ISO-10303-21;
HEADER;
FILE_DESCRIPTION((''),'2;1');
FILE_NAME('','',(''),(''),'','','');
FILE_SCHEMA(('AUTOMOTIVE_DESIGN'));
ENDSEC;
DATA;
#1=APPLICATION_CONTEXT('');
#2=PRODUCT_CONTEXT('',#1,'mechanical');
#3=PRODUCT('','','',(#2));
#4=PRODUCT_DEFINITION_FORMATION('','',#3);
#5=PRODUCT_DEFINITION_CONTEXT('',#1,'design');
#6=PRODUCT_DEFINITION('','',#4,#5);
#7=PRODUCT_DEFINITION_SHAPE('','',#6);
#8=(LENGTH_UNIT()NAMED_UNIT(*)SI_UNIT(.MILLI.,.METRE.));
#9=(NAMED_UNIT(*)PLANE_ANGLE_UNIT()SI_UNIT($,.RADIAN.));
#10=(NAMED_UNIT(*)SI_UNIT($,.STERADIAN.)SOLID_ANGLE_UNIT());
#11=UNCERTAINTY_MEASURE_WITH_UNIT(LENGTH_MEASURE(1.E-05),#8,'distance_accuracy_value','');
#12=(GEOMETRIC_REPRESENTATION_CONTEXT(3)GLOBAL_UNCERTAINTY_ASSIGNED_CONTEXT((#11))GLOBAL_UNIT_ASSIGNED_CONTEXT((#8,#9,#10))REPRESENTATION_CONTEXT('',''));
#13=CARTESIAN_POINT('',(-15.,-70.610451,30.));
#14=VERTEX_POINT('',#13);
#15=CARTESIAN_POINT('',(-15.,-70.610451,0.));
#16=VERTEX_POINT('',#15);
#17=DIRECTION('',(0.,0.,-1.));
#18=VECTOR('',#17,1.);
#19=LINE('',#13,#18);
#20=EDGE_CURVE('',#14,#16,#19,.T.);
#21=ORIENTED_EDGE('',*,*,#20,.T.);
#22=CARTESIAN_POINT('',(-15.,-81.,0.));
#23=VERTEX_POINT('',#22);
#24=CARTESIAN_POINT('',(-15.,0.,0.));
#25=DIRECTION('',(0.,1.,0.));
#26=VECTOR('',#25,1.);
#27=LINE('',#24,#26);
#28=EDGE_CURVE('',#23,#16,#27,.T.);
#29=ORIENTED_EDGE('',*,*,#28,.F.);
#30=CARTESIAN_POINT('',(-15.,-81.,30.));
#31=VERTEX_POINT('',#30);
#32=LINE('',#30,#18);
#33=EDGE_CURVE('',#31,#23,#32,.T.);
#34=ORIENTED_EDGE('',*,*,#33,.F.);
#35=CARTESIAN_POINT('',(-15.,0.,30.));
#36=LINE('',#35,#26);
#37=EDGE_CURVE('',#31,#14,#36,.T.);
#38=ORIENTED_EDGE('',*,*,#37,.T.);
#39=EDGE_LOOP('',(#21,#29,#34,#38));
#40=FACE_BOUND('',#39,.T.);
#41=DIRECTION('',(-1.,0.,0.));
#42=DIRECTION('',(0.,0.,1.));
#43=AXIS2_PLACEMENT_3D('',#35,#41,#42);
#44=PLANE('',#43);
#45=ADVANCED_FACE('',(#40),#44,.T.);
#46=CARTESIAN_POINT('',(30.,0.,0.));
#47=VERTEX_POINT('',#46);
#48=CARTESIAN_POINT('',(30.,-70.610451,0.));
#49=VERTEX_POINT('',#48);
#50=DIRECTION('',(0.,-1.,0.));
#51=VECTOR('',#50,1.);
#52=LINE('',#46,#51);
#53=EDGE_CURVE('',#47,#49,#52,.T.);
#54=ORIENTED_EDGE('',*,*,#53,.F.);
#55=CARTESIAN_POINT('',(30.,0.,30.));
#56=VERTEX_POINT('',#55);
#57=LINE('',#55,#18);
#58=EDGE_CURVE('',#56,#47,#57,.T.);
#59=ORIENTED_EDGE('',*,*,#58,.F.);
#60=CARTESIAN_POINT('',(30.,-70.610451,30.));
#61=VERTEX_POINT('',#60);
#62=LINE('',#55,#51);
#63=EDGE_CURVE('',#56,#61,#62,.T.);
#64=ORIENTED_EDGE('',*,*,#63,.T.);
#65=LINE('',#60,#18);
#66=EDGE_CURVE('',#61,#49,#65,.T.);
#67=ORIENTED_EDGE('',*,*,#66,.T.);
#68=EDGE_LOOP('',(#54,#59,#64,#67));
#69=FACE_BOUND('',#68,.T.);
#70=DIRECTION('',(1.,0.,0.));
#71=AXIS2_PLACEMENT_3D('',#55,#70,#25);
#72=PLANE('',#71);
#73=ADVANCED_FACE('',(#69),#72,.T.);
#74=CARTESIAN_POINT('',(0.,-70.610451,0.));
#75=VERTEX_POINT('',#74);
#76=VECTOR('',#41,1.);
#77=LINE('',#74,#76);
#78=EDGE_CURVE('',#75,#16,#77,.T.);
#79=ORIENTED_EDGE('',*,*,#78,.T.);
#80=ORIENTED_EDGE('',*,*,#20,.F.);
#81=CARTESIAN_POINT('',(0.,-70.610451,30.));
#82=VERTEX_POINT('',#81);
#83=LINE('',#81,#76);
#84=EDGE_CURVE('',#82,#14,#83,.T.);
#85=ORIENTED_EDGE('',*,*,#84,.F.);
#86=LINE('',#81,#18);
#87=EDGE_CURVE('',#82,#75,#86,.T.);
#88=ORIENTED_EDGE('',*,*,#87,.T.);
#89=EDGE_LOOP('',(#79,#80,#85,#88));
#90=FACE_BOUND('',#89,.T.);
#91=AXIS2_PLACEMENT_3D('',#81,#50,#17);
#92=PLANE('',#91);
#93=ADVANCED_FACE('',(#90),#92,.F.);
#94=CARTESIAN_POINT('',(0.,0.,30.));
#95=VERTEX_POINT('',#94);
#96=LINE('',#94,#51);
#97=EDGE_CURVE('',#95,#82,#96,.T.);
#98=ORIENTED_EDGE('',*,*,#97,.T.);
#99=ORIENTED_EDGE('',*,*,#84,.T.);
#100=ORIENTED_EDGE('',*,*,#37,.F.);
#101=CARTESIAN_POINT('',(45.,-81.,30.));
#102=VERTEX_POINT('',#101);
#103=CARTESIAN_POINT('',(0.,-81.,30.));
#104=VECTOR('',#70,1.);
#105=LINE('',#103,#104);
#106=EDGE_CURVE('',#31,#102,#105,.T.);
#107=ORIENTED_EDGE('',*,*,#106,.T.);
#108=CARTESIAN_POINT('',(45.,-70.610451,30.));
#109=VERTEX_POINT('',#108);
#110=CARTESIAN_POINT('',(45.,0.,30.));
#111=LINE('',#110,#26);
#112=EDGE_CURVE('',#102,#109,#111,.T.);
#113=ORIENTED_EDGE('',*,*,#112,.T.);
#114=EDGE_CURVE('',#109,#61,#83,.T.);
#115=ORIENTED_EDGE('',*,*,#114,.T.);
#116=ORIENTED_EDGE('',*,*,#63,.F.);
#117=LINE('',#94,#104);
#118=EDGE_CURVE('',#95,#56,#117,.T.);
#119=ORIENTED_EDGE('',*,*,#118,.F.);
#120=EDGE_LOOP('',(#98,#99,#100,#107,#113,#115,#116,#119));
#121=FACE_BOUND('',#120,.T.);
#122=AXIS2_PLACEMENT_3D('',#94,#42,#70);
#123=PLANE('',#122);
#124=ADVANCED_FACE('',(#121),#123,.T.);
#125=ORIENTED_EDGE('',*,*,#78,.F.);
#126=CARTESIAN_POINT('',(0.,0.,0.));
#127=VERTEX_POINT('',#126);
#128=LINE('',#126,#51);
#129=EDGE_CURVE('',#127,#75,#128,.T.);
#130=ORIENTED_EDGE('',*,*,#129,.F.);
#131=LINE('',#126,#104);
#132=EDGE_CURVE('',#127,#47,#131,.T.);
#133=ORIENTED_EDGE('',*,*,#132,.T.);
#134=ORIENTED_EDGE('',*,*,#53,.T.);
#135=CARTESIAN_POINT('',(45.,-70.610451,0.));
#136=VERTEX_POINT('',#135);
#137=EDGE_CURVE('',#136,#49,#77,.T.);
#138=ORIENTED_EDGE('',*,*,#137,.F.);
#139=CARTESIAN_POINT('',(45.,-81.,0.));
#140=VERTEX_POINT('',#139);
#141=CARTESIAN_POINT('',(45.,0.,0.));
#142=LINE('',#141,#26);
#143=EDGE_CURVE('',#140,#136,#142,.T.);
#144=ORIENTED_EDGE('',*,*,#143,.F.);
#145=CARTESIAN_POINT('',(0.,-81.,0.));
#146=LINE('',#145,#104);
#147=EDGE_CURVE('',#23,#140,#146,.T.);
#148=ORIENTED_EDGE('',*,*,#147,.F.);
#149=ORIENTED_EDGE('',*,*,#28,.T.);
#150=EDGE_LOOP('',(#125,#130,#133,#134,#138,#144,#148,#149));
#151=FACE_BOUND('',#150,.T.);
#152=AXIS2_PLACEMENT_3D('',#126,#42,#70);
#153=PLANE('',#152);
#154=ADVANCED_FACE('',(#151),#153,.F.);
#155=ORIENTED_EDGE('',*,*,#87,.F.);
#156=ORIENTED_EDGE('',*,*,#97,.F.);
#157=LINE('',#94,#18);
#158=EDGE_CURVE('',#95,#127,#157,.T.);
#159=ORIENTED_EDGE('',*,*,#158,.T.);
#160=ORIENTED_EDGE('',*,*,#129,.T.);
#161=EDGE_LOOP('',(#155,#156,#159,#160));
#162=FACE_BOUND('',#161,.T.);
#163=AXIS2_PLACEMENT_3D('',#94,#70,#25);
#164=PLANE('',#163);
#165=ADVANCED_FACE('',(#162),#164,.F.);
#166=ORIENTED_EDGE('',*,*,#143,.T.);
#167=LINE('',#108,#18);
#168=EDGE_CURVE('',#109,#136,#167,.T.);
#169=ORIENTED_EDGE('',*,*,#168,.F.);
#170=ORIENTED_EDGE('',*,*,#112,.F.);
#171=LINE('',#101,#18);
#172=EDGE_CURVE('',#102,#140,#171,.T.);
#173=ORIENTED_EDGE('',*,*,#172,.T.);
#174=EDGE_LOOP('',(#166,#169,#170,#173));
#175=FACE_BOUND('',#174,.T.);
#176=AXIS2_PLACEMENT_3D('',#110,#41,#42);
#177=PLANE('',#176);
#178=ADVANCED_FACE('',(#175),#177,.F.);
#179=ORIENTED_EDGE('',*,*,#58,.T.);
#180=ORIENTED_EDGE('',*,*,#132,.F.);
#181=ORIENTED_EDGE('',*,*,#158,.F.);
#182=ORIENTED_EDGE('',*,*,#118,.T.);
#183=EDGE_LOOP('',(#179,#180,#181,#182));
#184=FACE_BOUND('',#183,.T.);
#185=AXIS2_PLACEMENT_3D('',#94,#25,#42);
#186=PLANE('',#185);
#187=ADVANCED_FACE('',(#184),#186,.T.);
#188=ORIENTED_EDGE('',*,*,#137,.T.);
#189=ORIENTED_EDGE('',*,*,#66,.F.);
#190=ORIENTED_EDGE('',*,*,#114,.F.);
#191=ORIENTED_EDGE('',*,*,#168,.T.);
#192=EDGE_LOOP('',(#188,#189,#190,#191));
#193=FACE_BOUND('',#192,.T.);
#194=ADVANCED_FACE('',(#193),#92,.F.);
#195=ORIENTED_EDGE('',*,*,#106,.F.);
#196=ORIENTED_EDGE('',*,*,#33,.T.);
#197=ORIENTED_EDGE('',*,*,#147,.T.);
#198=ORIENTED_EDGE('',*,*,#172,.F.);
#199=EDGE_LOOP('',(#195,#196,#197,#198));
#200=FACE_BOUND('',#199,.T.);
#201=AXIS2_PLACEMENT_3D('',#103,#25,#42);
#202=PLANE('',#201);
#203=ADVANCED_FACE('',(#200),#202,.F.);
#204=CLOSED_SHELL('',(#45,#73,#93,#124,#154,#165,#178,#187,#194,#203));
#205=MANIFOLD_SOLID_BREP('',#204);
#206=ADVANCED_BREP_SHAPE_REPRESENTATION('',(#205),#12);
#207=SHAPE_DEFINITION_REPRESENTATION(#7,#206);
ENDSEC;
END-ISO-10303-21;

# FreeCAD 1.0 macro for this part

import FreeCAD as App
import Part
import Sketcher
from FreeCAD import Vector

doc = App.newDocument("Part")
params = doc.addObject("Spreadsheet::Sheet", "Params")
for row, (alias, value) in enumerate([
    ("sketch1_width", "60 mm"),
    ("sketch1_width2", "15 mm"),
    ("pad1_length", "30 mm"),
], start=1):
    params.set(f"A{row}", alias)
    params.set(f"B{row}", "=" + value)
    params.setAlias(f"B{row}", alias)

body = doc.addObject("PartDesign::Body", "Body")

# Sketch on XY plane
sketch1 = body.newObject("Sketcher::SketchObject", "Sketch")
sketch1.AttachmentSupport = (doc.getObject("XY_Plane"), [""])
sketch1.MapMode = "FlatFace"
sketch1.addGeometry([
    Part.LineSegment(Vector(-15, -81, 0), Vector(45, -81, 0)),  # 0
    Part.LineSegment(Vector(45, -81, 0), Vector(45, -71, 0)),  # 1
    Part.LineSegment(Vector(45, -71, 0), Vector(30, -71, 0)),  # 2
    Part.LineSegment(Vector(30, -71, 0), Vector(30, 0, 0)),  # 3
    Part.LineSegment(Vector(30, 0, 0), Vector(0, 0, 0)),  # 4
    Part.LineSegment(Vector(0, 0, 0), Vector(0, -71, 0)),  # 5
    Part.LineSegment(Vector(0, -71, 0), Vector(-15, -71, 0)),  # 6
    Part.LineSegment(Vector(-15, -71, 0), Vector(-15, -81, 0)),  # 7
], False)
sketch1.addConstraint([
    Sketcher.Constraint("Coincident", 0, 2, 1, 1),
    Sketcher.Constraint("Coincident", 1, 2, 2, 1),
    Sketcher.Constraint("Coincident", 2, 2, 3, 1),
    Sketcher.Constraint("Coincident", 3, 2, 4, 1),
    Sketcher.Constraint("Coincident", 4, 2, 5, 1),
    Sketcher.Constraint("Coincident", 5, 2, 6, 1),
    Sketcher.Constraint("Coincident", 6, 2, 7, 1),
    Sketcher.Constraint("Coincident", 7, 2, 0, 1),
    Sketcher.Constraint("Horizontal", 0),
    Sketcher.Constraint("Vertical", 1),
    Sketcher.Constraint("Horizontal", 2),
    Sketcher.Constraint("Vertical", 3),
    Sketcher.Constraint("Horizontal", 4),
    Sketcher.Constraint("Vertical", 5),
    Sketcher.Constraint("Horizontal", 6),
    Sketcher.Constraint("Vertical", 7),
    Sketcher.Constraint("Coincident", 4, 2, -1, 1),
    Sketcher.Constraint("Horizontal", 2, 2, 5, 2),
    Sketcher.Constraint("Equal", 2, 6),
    Sketcher.Constraint("DistanceX", 0, 1, 0, 2, 60.0),
    Sketcher.Constraint("DistanceX", 2, 2, 2, 1, 15.0),
    Sketcher.Constraint("DistanceY", 0, 2, -1, 1, 81.0),
    Sketcher.Constraint("DistanceY", 1, 1, 1, 2, 10.389549),
])
sketch1.setExpression("Constraints[19]", "Params.sketch1_width")
sketch1.setExpression("Constraints[20]", "Params.sketch1_width2")
pad1 = body.newObject("PartDesign::Pad", "Pad")
pad1.Profile = sketch1
pad1.setExpression("Length", "Params.pad1_length")

doc.recompute()
